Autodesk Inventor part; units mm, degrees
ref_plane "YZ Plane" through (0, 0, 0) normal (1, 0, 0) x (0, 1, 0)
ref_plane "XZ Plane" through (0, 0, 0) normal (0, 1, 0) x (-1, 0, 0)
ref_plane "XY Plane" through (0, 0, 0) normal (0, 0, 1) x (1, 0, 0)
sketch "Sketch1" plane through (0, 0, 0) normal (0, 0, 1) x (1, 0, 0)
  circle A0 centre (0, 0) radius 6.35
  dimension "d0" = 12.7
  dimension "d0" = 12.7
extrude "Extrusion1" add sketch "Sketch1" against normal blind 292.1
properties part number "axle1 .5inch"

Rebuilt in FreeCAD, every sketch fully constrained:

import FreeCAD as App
import Part
import Sketcher
Q = App.Units.Quantity

doc = App.newDocument("Part")
body = doc.addObject("PartDesign::Body", "Body")

sketch1 = doc.addObject("Sketcher::SketchObject", "Sketch")
body.addObject(sketch1)
sketch1.AttachmentSupport = (doc.XY_Plane, [""])
sketch1.MapMode = "FlatFace"
sketch1.addGeometry(Part.Circle(App.Vector(0, 0, 0), App.Vector(0, 0, 1), 6), False)
sketch1.addConstraint([
    Sketcher.Constraint("Coincident", 0, 3, -1, 1),
    Sketcher.Constraint("Diameter", 0, Q("0.5 in")),
])
pad1 = doc.addObject("PartDesign::Pad", "Pad")
body.addObject(pad1)
pad1.Profile = sketch1
pad1.Length = Q("11.5 in")
pad1.Reversed = True

doc.recompute()
